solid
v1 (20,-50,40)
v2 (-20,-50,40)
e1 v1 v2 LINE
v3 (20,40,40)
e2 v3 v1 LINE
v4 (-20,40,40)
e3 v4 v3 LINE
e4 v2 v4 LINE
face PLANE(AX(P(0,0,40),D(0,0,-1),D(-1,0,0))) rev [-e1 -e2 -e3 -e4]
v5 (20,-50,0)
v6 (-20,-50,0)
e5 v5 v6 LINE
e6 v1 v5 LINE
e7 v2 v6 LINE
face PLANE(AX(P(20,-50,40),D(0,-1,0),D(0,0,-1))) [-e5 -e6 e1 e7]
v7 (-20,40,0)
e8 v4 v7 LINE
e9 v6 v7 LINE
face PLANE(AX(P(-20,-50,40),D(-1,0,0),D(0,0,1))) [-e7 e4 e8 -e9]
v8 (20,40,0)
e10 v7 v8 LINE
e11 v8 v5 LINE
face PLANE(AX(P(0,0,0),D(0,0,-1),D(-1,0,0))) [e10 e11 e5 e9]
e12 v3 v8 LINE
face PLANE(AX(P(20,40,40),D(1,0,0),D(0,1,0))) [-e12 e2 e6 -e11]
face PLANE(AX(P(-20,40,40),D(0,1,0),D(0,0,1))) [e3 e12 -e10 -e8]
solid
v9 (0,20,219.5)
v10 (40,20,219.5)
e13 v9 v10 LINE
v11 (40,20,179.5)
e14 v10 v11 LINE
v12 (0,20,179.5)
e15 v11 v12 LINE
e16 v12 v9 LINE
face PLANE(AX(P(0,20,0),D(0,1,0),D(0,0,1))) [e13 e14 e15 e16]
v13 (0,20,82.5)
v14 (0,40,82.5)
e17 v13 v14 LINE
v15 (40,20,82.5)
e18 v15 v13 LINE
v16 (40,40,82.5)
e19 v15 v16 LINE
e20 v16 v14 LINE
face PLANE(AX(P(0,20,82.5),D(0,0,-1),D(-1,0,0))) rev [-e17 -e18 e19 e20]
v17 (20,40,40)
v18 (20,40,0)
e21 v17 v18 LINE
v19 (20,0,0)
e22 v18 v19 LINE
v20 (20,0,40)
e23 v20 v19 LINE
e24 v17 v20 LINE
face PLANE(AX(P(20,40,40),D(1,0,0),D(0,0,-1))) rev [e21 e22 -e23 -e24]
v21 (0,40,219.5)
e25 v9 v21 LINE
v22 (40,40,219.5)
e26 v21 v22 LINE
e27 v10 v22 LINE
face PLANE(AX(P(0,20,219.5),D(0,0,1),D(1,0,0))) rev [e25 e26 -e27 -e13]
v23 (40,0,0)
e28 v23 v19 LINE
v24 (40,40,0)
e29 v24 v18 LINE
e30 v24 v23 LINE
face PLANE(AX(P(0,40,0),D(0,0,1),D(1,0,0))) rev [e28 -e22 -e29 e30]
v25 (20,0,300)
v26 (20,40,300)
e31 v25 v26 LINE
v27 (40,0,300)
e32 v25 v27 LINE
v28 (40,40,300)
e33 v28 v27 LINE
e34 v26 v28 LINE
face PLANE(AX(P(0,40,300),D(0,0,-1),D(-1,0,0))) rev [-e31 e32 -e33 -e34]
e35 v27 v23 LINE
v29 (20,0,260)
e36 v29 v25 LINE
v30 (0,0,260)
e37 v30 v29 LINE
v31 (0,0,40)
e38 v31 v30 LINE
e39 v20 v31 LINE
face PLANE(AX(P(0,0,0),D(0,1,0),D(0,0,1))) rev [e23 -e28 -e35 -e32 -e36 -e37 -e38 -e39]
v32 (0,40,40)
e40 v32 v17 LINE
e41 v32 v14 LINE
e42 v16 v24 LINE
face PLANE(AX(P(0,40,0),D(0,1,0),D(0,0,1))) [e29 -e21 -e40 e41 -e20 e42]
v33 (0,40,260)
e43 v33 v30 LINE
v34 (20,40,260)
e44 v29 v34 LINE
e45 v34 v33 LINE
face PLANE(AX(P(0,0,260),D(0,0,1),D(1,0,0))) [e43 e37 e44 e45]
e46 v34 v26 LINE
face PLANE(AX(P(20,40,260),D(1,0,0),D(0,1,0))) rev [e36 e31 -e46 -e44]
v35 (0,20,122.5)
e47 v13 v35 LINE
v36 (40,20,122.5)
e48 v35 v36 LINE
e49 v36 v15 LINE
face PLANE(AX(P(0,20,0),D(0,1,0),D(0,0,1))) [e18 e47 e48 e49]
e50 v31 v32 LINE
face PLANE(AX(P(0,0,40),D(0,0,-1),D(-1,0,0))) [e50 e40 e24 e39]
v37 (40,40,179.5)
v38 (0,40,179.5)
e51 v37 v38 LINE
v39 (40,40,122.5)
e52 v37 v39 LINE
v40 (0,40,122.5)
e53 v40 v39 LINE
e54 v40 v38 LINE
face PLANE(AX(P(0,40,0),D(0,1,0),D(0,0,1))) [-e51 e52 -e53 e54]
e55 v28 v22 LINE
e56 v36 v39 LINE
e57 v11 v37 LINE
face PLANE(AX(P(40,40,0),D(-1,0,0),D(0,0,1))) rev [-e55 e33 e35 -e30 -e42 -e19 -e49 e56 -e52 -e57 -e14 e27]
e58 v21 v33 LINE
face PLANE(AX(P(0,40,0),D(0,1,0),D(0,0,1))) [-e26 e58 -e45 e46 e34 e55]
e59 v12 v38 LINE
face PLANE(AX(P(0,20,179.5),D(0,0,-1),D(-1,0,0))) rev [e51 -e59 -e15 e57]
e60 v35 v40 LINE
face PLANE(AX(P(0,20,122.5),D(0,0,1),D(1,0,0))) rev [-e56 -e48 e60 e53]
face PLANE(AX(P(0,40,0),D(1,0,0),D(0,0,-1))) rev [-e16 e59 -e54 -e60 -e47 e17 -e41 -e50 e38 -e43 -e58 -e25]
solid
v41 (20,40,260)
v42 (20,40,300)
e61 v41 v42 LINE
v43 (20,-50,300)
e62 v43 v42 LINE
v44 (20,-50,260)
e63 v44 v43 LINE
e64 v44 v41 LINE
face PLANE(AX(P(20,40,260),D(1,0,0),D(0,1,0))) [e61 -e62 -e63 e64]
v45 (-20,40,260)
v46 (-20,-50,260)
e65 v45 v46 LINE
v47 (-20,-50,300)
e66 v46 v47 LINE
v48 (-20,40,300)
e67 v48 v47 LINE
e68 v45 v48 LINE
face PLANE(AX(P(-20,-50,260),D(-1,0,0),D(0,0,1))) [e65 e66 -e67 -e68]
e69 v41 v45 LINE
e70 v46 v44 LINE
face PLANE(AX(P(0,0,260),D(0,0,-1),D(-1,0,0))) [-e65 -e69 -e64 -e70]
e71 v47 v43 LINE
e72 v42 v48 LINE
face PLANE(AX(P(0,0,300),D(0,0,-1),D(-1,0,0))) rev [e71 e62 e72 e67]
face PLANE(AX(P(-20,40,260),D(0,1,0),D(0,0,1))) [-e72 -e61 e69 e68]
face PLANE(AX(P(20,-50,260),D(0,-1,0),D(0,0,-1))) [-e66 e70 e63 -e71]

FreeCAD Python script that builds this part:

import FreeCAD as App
import Part
import Sketcher

doc = App.newDocument("Part")
body = doc.addObject("PartDesign::Body", "Body")

# Sketch on XZ plane
sketch1 = body.newObject("Sketcher::SketchObject", "Sketch")
sketch1.AttachmentSupport = (doc.getObject("XZ_Plane"), [""])
sketch1.MapMode = "FlatFace"
sketch1.addGeometry([
    Part.LineSegment(App.Vector(0, 0, 0), App.Vector(0, 300, 0)),
    Part.LineSegment(App.Vector(0, 300, 0), App.Vector(40, 300, 0)),
    Part.LineSegment(App.Vector(40, 300, 0), App.Vector(40, 0, 0)),
    Part.LineSegment(App.Vector(40, 0, 0), App.Vector(0, 0, 0)),
], False)
sketch1.addConstraint([
    Sketcher.Constraint("Coincident", 0, 2, 1, 1),
    Sketcher.Constraint("Coincident", 1, 2, 2, 1),
    Sketcher.Constraint("Coincident", 2, 2, 3, 1),
    Sketcher.Constraint("Coincident", 3, 2, 0, 1),
    Sketcher.Constraint("Vertical", 0),
    Sketcher.Constraint("Horizontal", 1),
    Sketcher.Constraint("Vertical", 2),
    Sketcher.Constraint("Horizontal", 3),
    Sketcher.Constraint("Coincident", 3, 2, -1, 1),
    Sketcher.Constraint("DistanceX", 1, 1, 1, 2, 40.0),
    Sketcher.Constraint("DistanceY", 0, 1, 0, 2, 300.0),
])
pad1 = body.newObject("PartDesign::Pad", "Pad")
pad1.Profile = sketch1
pad1.Length = 40
pad1.Reversed = True

# Sketch on XZ plane
sketch2 = body.newObject("Sketcher::SketchObject", "Sketch001")
sketch2.AttachmentSupport = (doc.getObject("XZ_Plane"), [""])
sketch2.MapMode = "FlatFace"
sketch2.AttachmentOffset = App.Placement(App.Vector(0, 0, -40), App.Rotation())
sketch2.addGeometry([
    Part.LineSegment(App.Vector(0, 82, 0), App.Vector(0, 122, 0)),  # 0
    Part.LineSegment(App.Vector(0, 122, 0), App.Vector(40, 122, 0)),  # 1
    Part.LineSegment(App.Vector(40, 122, 0), App.Vector(40, 82, 0)),  # 2
    Part.LineSegment(App.Vector(40, 82, 0), App.Vector(0, 82, 0)),  # 3
    Part.LineSegment(App.Vector(0, 180, 0), App.Vector(0, 220, 0)),  # 4
    Part.LineSegment(App.Vector(0, 220, 0), App.Vector(40, 220, 0)),  # 5
    Part.LineSegment(App.Vector(40, 220, 0), App.Vector(40, 180, 0)),  # 6
    Part.LineSegment(App.Vector(40, 180, 0), App.Vector(0, 180, 0)),  # 7
], False)
sketch2.addConstraint([
    Sketcher.Constraint("Coincident", 0, 2, 1, 1),
    Sketcher.Constraint("Coincident", 1, 2, 2, 1),
    Sketcher.Constraint("Coincident", 2, 2, 3, 1),
    Sketcher.Constraint("Coincident", 3, 2, 0, 1),
    Sketcher.Constraint("Coincident", 4, 2, 5, 1),
    Sketcher.Constraint("Coincident", 5, 2, 6, 1),
    Sketcher.Constraint("Coincident", 6, 2, 7, 1),
    Sketcher.Constraint("Coincident", 7, 2, 4, 1),
    Sketcher.Constraint("Vertical", 0),
    Sketcher.Constraint("Horizontal", 1),
    Sketcher.Constraint("Vertical", 2),
    Sketcher.Constraint("Horizontal", 3),
    Sketcher.Constraint("Vertical", 4),
    Sketcher.Constraint("Horizontal", 5),
    Sketcher.Constraint("Vertical", 6),
    Sketcher.Constraint("Horizontal", 7),
    Sketcher.Constraint("PointOnObject", 0, 2, -2),
    Sketcher.Constraint("PointOnObject", 4, 2, -2),
    Sketcher.Constraint("Vertical", 2, 2, 5, 2),
    Sketcher.Constraint("Equal", 7, 0),
    Sketcher.Constraint("Equal", 2, 4),
    Sketcher.Constraint("DistanceX", 1, 1, 1, 2, 40.0),
    Sketcher.Constraint("DistanceY", 0, 2, 4, 2, 97.0),
    Sketcher.Constraint("DistanceY", -1, 1, 0, 2, 122.5),
])
pocket1 = body.newObject("PartDesign::Pocket", "Pocket")
pocket1.Profile = sketch2
pocket1.Length = 20
pocket1.Reversed = True

# Sketch on XY plane
sketch3 = body.newObject("Sketcher::SketchObject", "Sketch002")
sketch3.AttachmentSupport = (doc.getObject("XY_Plane"), [""])
sketch3.MapMode = "FlatFace"
sketch3.AttachmentOffset = App.Placement(App.Vector(0, 0, 300), App.Rotation())
sketch3.addGeometry([
    Part.LineSegment(App.Vector(0, 40, 0), App.Vector(0, 0, 0)),
    Part.LineSegment(App.Vector(0, 0, 0), App.Vector(20, 0, 0)),
    Part.LineSegment(App.Vector(20, 0, 0), App.Vector(20, 40, 0)),
    Part.LineSegment(App.Vector(20, 40, 0), App.Vector(0, 40, 0)),
], False)
sketch3.addConstraint([
    Sketcher.Constraint("Coincident", 0, 2, 1, 1),
    Sketcher.Constraint("Coincident", 1, 2, 2, 1),
    Sketcher.Constraint("Coincident", 2, 2, 3, 1),
    Sketcher.Constraint("Coincident", 3, 2, 0, 1),
    Sketcher.Constraint("Vertical", 0),
    Sketcher.Constraint("Horizontal", 1),
    Sketcher.Constraint("Vertical", 2),
    Sketcher.Constraint("Horizontal", 3),
    Sketcher.Constraint("Coincident", 0, 2, -1, 1),
    Sketcher.Constraint("DistanceX", 1, 1, 1, 2, 20.0),
    Sketcher.Constraint("DistanceY", 0, 2, 0, 1, 40.0),
])
pocket2 = body.newObject("PartDesign::Pocket", "Pocket001")
pocket2.Profile = sketch3
pocket2.Length = 40

# Sketch on XY plane
sketch4 = body.newObject("Sketcher::SketchObject", "Sketch003")
sketch4.AttachmentSupport = (doc.getObject("XY_Plane"), [""])
sketch4.MapMode = "FlatFace"
sketch4.addGeometry([
    Part.LineSegment(App.Vector(20, 40, 0), App.Vector(20, 0, 0)),
    Part.LineSegment(App.Vector(20, 0, 0), App.Vector(0, 0, 0)),
    Part.LineSegment(App.Vector(0, 0, 0), App.Vector(0, 40, 0)),
    Part.LineSegment(App.Vector(0, 40, 0), App.Vector(20, 40, 0)),
], False)
sketch4.addConstraint([
    Sketcher.Constraint("Coincident", 0, 2, 1, 1),
    Sketcher.Constraint("Coincident", 1, 2, 2, 1),
    Sketcher.Constraint("Coincident", 2, 2, 3, 1),
    Sketcher.Constraint("Coincident", 3, 2, 0, 1),
    Sketcher.Constraint("Vertical", 0),
    Sketcher.Constraint("Horizontal", 1),
    Sketcher.Constraint("Vertical", 2),
    Sketcher.Constraint("Horizontal", 3),
    Sketcher.Constraint("Coincident", 1, 2, -1, 1),
    Sketcher.Constraint("DistanceX", 1, 2, 1, 1, 20.0),
    Sketcher.Constraint("DistanceY", 0, 2, 0, 1, 40.0),
])
pocket3 = body.newObject("PartDesign::Pocket", "Pocket002")
pocket3.Profile = sketch4
pocket3.Length = 40
pocket3.Reversed = True
body2 = doc.addObject("PartDesign::Body", "Body001")

# Sketch on XY plane
sketch5 = body2.newObject("Sketcher::SketchObject", "Sketch004")
sketch5.AttachmentSupport = (doc.getObject("XY_Plane001"), [""])
sketch5.MapMode = "FlatFace"
sketch5.AttachmentOffset = App.Placement(App.Vector(0, 0, 300), App.Rotation())
sketch5.addGeometry([
    Part.LineSegment(App.Vector(-20, 40, 0), App.Vector(-20, -50, 0)),
    Part.LineSegment(App.Vector(-20, -50, 0), App.Vector(20, -50, 0)),
    Part.LineSegment(App.Vector(20, -50, 0), App.Vector(20, 40, 0)),
    Part.LineSegment(App.Vector(20, 40, 0), App.Vector(-20, 40, 0)),
], False)
sketch5.addConstraint([
    Sketcher.Constraint("Coincident", 0, 2, 1, 1),
    Sketcher.Constraint("Coincident", 1, 2, 2, 1),
    Sketcher.Constraint("Coincident", 2, 2, 3, 1),
    Sketcher.Constraint("Coincident", 3, 2, 0, 1),
    Sketcher.Constraint("Vertical", 0),
    Sketcher.Constraint("Horizontal", 1),
    Sketcher.Constraint("Vertical", 2),
    Sketcher.Constraint("Horizontal", 3),
    Sketcher.Constraint("DistanceX", 1, 1, 1, 2, 40.0),
    Sketcher.Constraint("DistanceY", 0, 2, 0, 1, 90.0),
    Sketcher.Constraint("DistanceX", 0, 2, -1, 1, 20.0),
    Sketcher.Constraint("DistanceY", 0, 2, -1, 1, 50.0),
])
pad2 = body2.newObject("PartDesign::Pad", "Pad001")
pad2.Profile = sketch5
pad2.Length = 40
pad2.Reversed = True
body3 = doc.addObject("PartDesign::Body", "Body002")

# Sketch on XY plane
sketch6 = body3.newObject("Sketcher::SketchObject", "Sketch005")
sketch6.AttachmentSupport = (doc.getObject("XY_Plane002"), [""])
sketch6.MapMode = "FlatFace"
sketch6.addGeometry([
    Part.LineSegment(App.Vector(20, 40, 0), App.Vector(20, -50, 0)),
    Part.LineSegment(App.Vector(20, -50, 0), App.Vector(-20, -50, 0)),
    Part.LineSegment(App.Vector(-20, -50, 0), App.Vector(-20, 40, 0)),
    Part.LineSegment(App.Vector(-20, 40, 0), App.Vector(20, 40, 0)),
], False)
sketch6.addConstraint([
    Sketcher.Constraint("Coincident", 0, 2, 1, 1),
    Sketcher.Constraint("Coincident", 1, 2, 2, 1),
    Sketcher.Constraint("Coincident", 2, 2, 3, 1),
    Sketcher.Constraint("Coincident", 3, 2, 0, 1),
    Sketcher.Constraint("Vertical", 0),
    Sketcher.Constraint("Horizontal", 1),
    Sketcher.Constraint("Vertical", 2),
    Sketcher.Constraint("Horizontal", 3),
    Sketcher.Constraint("DistanceX", 1, 2, 1, 1, 40.0),
    Sketcher.Constraint("DistanceY", 0, 2, 0, 1, 90.0),
    Sketcher.Constraint("DistanceX", -1, 1, 0, 2, 20.0),
    Sketcher.Constraint("DistanceY", 0, 2, -1, 1, 50.0),
])
pad3 = body3.newObject("PartDesign::Pad", "Pad002")
pad3.Profile = sketch6
pad3.Length = 40

doc.recompute()
